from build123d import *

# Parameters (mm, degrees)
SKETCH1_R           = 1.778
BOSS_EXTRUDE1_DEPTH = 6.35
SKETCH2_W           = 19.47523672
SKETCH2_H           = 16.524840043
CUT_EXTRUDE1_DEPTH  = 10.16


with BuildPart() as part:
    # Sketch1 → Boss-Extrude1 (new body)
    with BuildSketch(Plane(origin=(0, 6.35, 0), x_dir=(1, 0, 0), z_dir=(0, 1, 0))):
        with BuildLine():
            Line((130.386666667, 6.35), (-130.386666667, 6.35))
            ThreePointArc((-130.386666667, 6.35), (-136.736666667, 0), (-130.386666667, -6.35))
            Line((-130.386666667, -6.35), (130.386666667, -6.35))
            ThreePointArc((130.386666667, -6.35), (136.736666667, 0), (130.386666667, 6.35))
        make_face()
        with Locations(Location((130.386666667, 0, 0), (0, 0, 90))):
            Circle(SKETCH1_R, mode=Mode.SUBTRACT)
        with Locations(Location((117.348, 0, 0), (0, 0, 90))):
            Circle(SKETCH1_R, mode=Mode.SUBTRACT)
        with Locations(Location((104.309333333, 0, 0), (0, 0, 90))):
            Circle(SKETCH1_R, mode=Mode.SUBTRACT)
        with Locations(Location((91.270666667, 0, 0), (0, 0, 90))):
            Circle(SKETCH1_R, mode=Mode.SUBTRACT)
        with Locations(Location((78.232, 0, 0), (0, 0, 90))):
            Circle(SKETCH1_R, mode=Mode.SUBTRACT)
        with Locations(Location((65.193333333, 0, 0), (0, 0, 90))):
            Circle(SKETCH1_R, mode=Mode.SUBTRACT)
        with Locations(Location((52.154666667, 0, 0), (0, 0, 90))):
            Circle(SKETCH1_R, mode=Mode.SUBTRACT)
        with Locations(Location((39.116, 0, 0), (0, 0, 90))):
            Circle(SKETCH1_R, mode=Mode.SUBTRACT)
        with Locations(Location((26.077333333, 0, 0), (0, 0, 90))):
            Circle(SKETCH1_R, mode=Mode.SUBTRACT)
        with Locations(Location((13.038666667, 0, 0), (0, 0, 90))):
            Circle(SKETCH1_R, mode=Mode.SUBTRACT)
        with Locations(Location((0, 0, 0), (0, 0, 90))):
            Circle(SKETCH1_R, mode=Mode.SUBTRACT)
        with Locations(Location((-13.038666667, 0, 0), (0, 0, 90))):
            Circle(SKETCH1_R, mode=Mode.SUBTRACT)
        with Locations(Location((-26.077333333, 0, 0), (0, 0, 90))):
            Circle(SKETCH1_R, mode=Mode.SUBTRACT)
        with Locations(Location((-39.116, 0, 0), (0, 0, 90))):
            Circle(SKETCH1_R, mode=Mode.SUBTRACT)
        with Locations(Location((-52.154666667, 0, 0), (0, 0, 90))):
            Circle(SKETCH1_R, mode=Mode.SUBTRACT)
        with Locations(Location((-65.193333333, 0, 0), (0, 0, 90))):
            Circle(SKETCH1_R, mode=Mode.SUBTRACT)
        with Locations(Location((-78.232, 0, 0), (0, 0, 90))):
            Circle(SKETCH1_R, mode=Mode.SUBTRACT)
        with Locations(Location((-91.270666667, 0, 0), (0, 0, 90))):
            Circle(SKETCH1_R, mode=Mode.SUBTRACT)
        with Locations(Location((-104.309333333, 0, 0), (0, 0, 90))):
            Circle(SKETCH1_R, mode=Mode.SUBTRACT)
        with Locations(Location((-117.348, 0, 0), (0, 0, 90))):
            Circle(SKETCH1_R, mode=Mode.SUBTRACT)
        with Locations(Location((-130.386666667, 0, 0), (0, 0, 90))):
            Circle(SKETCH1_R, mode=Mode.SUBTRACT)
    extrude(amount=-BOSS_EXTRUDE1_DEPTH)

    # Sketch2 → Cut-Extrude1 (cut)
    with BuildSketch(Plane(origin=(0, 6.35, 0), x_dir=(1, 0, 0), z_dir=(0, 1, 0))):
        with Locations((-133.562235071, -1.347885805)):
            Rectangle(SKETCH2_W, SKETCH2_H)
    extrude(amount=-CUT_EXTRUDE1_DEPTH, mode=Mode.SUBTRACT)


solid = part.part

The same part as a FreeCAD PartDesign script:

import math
import FreeCAD as App
import Part
import Sketcher
from FreeCAD import Vector
Q = App.Units.Quantity


def add_polygon(sketch, points):
    """Adds a closed chain of lines whose ends are joined by coincident constraints."""
    first, n = sketch.GeometryCount, len(points)
    for a, b in zip(points, points[1:] + points[:1]):
        sketch.addGeometry(Part.LineSegment(App.Vector(*a, 0), App.Vector(*b, 0)), False)
    for i in range(n):
        sketch.addConstraint(Sketcher.Constraint("Coincident", first + i, 2, first + (i + 1) % n, 1))

doc = App.newDocument("Part")
body = doc.addObject("PartDesign::Body", "Body")

sketch1 = body.newObject("Sketcher::SketchObject", "Sketch")
sketch1.AttachmentSupport = (doc.getObject("XZ_Plane"), [""])
sketch1.MapMode = "FlatFace"
sketch1.AttachmentOffset = App.Placement(Vector(0, 0, -0.25 * 25.4), App.Rotation())
sketch1.addGeometry(Part.LineSegment(Vector(130.4, -6.3, 0), Vector(-130.4, -6.3, 0)), False)
sketch1.addGeometry(Part.ArcOfCircle(Part.Circle(Vector(-130.4, 0, 0), Vector(0, 0, 1), 6.3), math.radians(90), math.radians(270)), False)
sketch1.addGeometry(Part.LineSegment(Vector(-130.4, 6.3, 0), Vector(130.4, 6.3, 0)), False)
sketch1.addGeometry(Part.ArcOfCircle(Part.Circle(Vector(130.4, 0, 0), Vector(0, 0, 1), 6.3), math.radians(-90), math.radians(90)), False)
sketch1.addGeometry(Part.Circle(Vector(-130.4, 0, 0), Vector(0, 0, 1), 1.8), False)
sketch1.addGeometry(Part.Circle(Vector(-117.3, 0, 0), Vector(0, 0, 1), 1.8), False)
sketch1.addGeometry(Part.Circle(Vector(-104.3, 0, 0), Vector(0, 0, 1), 1.8), False)
sketch1.addGeometry(Part.Circle(Vector(-91.3, 0, 0), Vector(0, 0, 1), 1.8), False)
sketch1.addGeometry(Part.Circle(Vector(-78.2, 0, 0), Vector(0, 0, 1), 1.8), False)
sketch1.addGeometry(Part.Circle(Vector(-65.2, 0, 0), Vector(0, 0, 1), 1.8), False)
sketch1.addGeometry(Part.Circle(Vector(-52.2, 0, 0), Vector(0, 0, 1), 1.8), False)
sketch1.addGeometry(Part.Circle(Vector(-39.1, 0, 0), Vector(0, 0, 1), 1.8), False)
sketch1.addGeometry(Part.Circle(Vector(-26.1, 0, 0), Vector(0, 0, 1), 1.8), False)
sketch1.addGeometry(Part.Circle(Vector(-13, 0, 0), Vector(0, 0, 1), 1.8), False)
sketch1.addGeometry(Part.Circle(Vector(0, 0, 0), Vector(0, 0, 1), 1.8), False)
sketch1.addGeometry(Part.Circle(Vector(13, 0, 0), Vector(0, 0, 1), 1.8), False)
sketch1.addGeometry(Part.Circle(Vector(26.1, 0, 0), Vector(0, 0, 1), 1.8), False)
sketch1.addGeometry(Part.Circle(Vector(39.1, 0, 0), Vector(0, 0, 1), 1.8), False)
sketch1.addGeometry(Part.Circle(Vector(52.2, 0, 0), Vector(0, 0, 1), 1.8), False)
sketch1.addGeometry(Part.Circle(Vector(65.2, 0, 0), Vector(0, 0, 1), 1.8), False)
sketch1.addGeometry(Part.Circle(Vector(78.2, 0, 0), Vector(0, 0, 1), 1.8), False)
sketch1.addGeometry(Part.Circle(Vector(91.3, 0, 0), Vector(0, 0, 1), 1.8), False)
sketch1.addGeometry(Part.Circle(Vector(104.3, 0, 0), Vector(0, 0, 1), 1.8), False)
sketch1.addGeometry(Part.Circle(Vector(117.3, 0, 0), Vector(0, 0, 1), 1.8), False)
sketch1.addGeometry(Part.Circle(Vector(130.4, 0, 0), Vector(0, 0, 1), 1.8), False)
sketch1.addConstraint(Sketcher.Constraint("Tangent", 0, 2, 1, 2))
sketch1.addConstraint(Sketcher.Constraint("Tangent", 1, 1, 2, 1))
sketch1.addConstraint(Sketcher.Constraint("Tangent", 2, 2, 3, 2))
sketch1.addConstraint(Sketcher.Constraint("Tangent", 3, 1, 0, 1))
sketch1.addConstraint(Sketcher.Constraint("Horizontal", 0))
sketch1.addConstraint(Sketcher.Constraint("Horizontal", 2))
sketch1.addConstraint(Sketcher.Constraint("Coincident", 14, 3, -1, 1))
sketch1.addConstraint(Sketcher.Constraint("Coincident", 4, 3, 1, 3))
sketch1.addConstraint(Sketcher.Constraint("Coincident", 24, 3, 3, 3))
sketch1.addConstraint(Sketcher.Constraint("Equal", 4, 5))
sketch1.addConstraint(Sketcher.Constraint("Equal", 5, 6))
sketch1.addConstraint(Sketcher.Constraint("Equal", 6, 7))
sketch1.addConstraint(Sketcher.Constraint("Equal", 7, 8))
sketch1.addConstraint(Sketcher.Constraint("Equal", 8, 9))
sketch1.addConstraint(Sketcher.Constraint("Equal", 9, 10))
sketch1.addConstraint(Sketcher.Constraint("Equal", 10, 11))
sketch1.addConstraint(Sketcher.Constraint("Equal", 11, 12))
sketch1.addConstraint(Sketcher.Constraint("Equal", 12, 13))
sketch1.addConstraint(Sketcher.Constraint("Equal", 13, 14))
sketch1.addConstraint(Sketcher.Constraint("Equal", 14, 15))
sketch1.addConstraint(Sketcher.Constraint("Equal", 15, 16))
sketch1.addConstraint(Sketcher.Constraint("Equal", 16, 17))
sketch1.addConstraint(Sketcher.Constraint("Equal", 17, 18))
sketch1.addConstraint(Sketcher.Constraint("Equal", 18, 19))
sketch1.addConstraint(Sketcher.Constraint("Equal", 19, 20))
sketch1.addConstraint(Sketcher.Constraint("Equal", 20, 21))
sketch1.addConstraint(Sketcher.Constraint("Equal", 21, 22))
sketch1.addConstraint(Sketcher.Constraint("Equal", 22, 23))
sketch1.addConstraint(Sketcher.Constraint("Equal", 23, 24))
sketch1.addConstraint(Sketcher.Constraint("Symmetric", 1, 3, 3, 3, -1, 1))
sketch1.addConstraint(Sketcher.Constraint("Symmetric", 13, 3, 15, 3, -1, 1))
sketch1.addConstraint(Sketcher.Constraint("Symmetric", 12, 3, 16, 3, -1, 1))
sketch1.addConstraint(Sketcher.Constraint("Symmetric", 11, 3, 17, 3, -1, 1))
sketch1.addConstraint(Sketcher.Constraint("Symmetric", 10, 3, 18, 3, -1, 1))
sketch1.addConstraint(Sketcher.Constraint("Symmetric", 9, 3, 19, 3, -1, 1))
sketch1.addConstraint(Sketcher.Constraint("Symmetric", 8, 3, 20, 3, -1, 1))
sketch1.addConstraint(Sketcher.Constraint("Symmetric", 7, 3, 21, 3, -1, 1))
sketch1.addConstraint(Sketcher.Constraint("Symmetric", 6, 3, 22, 3, -1, 1))
sketch1.addConstraint(Sketcher.Constraint("Symmetric", 5, 3, 23, 3, -1, 1))
sketch1.addConstraint(Sketcher.Constraint("PointOnObject", 5, 3, -1))
sketch1.addConstraint(Sketcher.Constraint("PointOnObject", 6, 3, -1))
sketch1.addConstraint(Sketcher.Constraint("PointOnObject", 7, 3, -1))
sketch1.addConstraint(Sketcher.Constraint("PointOnObject", 8, 3, -1))
sketch1.addConstraint(Sketcher.Constraint("PointOnObject", 9, 3, -1))
sketch1.addConstraint(Sketcher.Constraint("PointOnObject", 10, 3, -1))
sketch1.addConstraint(Sketcher.Constraint("PointOnObject", 11, 3, -1))
sketch1.addConstraint(Sketcher.Constraint("PointOnObject", 12, 3, -1))
sketch1.addConstraint(Sketcher.Constraint("PointOnObject", 13, 3, -1))
sketch1.addConstraint(Sketcher.Constraint("Diameter", 4, Q("0.14 in")))
sketch1.addConstraint(Sketcher.Constraint("Radius", 1, Q("0.25 in")))
sketch1.addConstraint(Sketcher.Constraint("DistanceX", 5, 3, -1, 1, Q("4.62 in")))
sketch1.addConstraint(Sketcher.Constraint("DistanceX", 8, 3, -1, 1, Q("3.08 in")))
sketch1.addConstraint(Sketcher.Constraint("DistanceX", 11, 3, -1, 1, Q("1.54 in")))
sketch1.addConstraint(Sketcher.Constraint("DistanceX", 6, 3, 3, 3, Q("9.24 in")))
sketch1.addConstraint(Sketcher.Constraint("DistanceX", 1, 3, 7, 3, Q("1.54 in")))
sketch1.addConstraint(Sketcher.Constraint("DistanceX", 6, 3, 9, 3, Q("1.54 in")))
sketch1.addConstraint(Sketcher.Constraint("DistanceX", 7, 3, 10, 3, Q("1.54 in")))
sketch1.addConstraint(Sketcher.Constraint("DistanceX", 9, 3, 12, 3, Q("1.54 in")))
sketch1.addConstraint(Sketcher.Constraint("DistanceX", 10, 3, 13, 3, Q("1.54 in")))
sketch1.addConstraint(Sketcher.Constraint("DistanceX", 0, 2, 0, 1, 260.773333))
pad1 = body.newObject("PartDesign::Pad", "Pad")
pad1.Profile = sketch1
pad1.Length = Q("0.25 in")

sketch2 = body.newObject("Sketcher::SketchObject", "Sketch001")
sketch2.AttachmentSupport = (doc.getObject("XZ_Plane"), [""])
sketch2.MapMode = "FlatFace"
sketch2.AttachmentOffset = App.Placement(Vector(0, 0, -0.25 * 25.4), App.Rotation())
add_polygon(sketch2, [(-143, -7), (-143, 10), (-124, 10), (-124, -7)])
sketch2.addConstraint(Sketcher.Constraint("Vertical", 0))
sketch2.addConstraint(Sketcher.Constraint("Horizontal", 1))
sketch2.addConstraint(Sketcher.Constraint("Vertical", 2))
sketch2.addConstraint(Sketcher.Constraint("Horizontal", 3))
sketch2.addConstraint(Sketcher.Constraint("DistanceY", 0, 1, 0, 2, 16.52484))
sketch2.addConstraint(Sketcher.Constraint("DistanceX", 1, 1, 1, 2, 19.475237))
sketch2.addConstraint(Sketcher.Constraint("DistanceX", 0, 2, -1, 1, 143.299853))
sketch2.addConstraint(Sketcher.Constraint("DistanceY", -1, 1, 0, 2, 9.610306))
pocket1 = body.newObject("PartDesign::Pocket", "Pocket")
pocket1.Profile = sketch2
pocket1.Length = Q("0.4 in")
pocket1.Reversed = True

doc.recompute()
